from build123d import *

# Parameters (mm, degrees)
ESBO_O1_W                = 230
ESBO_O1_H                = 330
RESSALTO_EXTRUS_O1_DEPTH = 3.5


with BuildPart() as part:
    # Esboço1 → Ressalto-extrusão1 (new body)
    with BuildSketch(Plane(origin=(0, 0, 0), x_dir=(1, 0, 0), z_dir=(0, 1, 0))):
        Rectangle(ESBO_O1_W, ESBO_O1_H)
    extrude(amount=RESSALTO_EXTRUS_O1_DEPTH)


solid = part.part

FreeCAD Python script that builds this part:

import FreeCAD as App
import Part
import Sketcher
from FreeCAD import Vector
Q = App.Units.Quantity

doc = App.newDocument("Part")
body = doc.addObject("PartDesign::Body", "Body")

# Sketch on XZ plane
sketch1 = body.newObject("Sketcher::SketchObject", "Sketch")
sketch1.AttachmentSupport = (doc.getObject("XZ_Plane"), [""])
sketch1.MapMode = "FlatFace"
sketch1.addGeometry([
    Part.LineSegment(Vector(-115, -165, 0), Vector(-115, 165, 0)),
    Part.LineSegment(Vector(-115, 165, 0), Vector(115, 165, 0)),
    Part.LineSegment(Vector(115, 165, 0), Vector(115, -165, 0)),
    Part.LineSegment(Vector(115, -165, 0), Vector(-115, -165, 0)),
], False)
sketch1.addConstraint([
    Sketcher.Constraint("Coincident", 0, 2, 1, 1),
    Sketcher.Constraint("Coincident", 1, 2, 2, 1),
    Sketcher.Constraint("Coincident", 2, 2, 3, 1),
    Sketcher.Constraint("Coincident", 3, 2, 0, 1),
    Sketcher.Constraint("Vertical", 0),
    Sketcher.Constraint("Horizontal", 1),
    Sketcher.Constraint("Vertical", 2),
    Sketcher.Constraint("Horizontal", 3),
    Sketcher.Constraint("Symmetric", 0, 2, 2, 2, -1, 1),
    Sketcher.Constraint("DistanceX", 1, 1, 1, 2, Q("230 mm")),
    Sketcher.Constraint("DistanceY", 0, 1, 0, 2, Q("330 mm")),
])
pad1 = body.newObject("PartDesign::Pad", "Pad")
pad1.Profile = sketch1
pad1.Length = 3.5
pad1.Reversed = True

doc.recompute()
